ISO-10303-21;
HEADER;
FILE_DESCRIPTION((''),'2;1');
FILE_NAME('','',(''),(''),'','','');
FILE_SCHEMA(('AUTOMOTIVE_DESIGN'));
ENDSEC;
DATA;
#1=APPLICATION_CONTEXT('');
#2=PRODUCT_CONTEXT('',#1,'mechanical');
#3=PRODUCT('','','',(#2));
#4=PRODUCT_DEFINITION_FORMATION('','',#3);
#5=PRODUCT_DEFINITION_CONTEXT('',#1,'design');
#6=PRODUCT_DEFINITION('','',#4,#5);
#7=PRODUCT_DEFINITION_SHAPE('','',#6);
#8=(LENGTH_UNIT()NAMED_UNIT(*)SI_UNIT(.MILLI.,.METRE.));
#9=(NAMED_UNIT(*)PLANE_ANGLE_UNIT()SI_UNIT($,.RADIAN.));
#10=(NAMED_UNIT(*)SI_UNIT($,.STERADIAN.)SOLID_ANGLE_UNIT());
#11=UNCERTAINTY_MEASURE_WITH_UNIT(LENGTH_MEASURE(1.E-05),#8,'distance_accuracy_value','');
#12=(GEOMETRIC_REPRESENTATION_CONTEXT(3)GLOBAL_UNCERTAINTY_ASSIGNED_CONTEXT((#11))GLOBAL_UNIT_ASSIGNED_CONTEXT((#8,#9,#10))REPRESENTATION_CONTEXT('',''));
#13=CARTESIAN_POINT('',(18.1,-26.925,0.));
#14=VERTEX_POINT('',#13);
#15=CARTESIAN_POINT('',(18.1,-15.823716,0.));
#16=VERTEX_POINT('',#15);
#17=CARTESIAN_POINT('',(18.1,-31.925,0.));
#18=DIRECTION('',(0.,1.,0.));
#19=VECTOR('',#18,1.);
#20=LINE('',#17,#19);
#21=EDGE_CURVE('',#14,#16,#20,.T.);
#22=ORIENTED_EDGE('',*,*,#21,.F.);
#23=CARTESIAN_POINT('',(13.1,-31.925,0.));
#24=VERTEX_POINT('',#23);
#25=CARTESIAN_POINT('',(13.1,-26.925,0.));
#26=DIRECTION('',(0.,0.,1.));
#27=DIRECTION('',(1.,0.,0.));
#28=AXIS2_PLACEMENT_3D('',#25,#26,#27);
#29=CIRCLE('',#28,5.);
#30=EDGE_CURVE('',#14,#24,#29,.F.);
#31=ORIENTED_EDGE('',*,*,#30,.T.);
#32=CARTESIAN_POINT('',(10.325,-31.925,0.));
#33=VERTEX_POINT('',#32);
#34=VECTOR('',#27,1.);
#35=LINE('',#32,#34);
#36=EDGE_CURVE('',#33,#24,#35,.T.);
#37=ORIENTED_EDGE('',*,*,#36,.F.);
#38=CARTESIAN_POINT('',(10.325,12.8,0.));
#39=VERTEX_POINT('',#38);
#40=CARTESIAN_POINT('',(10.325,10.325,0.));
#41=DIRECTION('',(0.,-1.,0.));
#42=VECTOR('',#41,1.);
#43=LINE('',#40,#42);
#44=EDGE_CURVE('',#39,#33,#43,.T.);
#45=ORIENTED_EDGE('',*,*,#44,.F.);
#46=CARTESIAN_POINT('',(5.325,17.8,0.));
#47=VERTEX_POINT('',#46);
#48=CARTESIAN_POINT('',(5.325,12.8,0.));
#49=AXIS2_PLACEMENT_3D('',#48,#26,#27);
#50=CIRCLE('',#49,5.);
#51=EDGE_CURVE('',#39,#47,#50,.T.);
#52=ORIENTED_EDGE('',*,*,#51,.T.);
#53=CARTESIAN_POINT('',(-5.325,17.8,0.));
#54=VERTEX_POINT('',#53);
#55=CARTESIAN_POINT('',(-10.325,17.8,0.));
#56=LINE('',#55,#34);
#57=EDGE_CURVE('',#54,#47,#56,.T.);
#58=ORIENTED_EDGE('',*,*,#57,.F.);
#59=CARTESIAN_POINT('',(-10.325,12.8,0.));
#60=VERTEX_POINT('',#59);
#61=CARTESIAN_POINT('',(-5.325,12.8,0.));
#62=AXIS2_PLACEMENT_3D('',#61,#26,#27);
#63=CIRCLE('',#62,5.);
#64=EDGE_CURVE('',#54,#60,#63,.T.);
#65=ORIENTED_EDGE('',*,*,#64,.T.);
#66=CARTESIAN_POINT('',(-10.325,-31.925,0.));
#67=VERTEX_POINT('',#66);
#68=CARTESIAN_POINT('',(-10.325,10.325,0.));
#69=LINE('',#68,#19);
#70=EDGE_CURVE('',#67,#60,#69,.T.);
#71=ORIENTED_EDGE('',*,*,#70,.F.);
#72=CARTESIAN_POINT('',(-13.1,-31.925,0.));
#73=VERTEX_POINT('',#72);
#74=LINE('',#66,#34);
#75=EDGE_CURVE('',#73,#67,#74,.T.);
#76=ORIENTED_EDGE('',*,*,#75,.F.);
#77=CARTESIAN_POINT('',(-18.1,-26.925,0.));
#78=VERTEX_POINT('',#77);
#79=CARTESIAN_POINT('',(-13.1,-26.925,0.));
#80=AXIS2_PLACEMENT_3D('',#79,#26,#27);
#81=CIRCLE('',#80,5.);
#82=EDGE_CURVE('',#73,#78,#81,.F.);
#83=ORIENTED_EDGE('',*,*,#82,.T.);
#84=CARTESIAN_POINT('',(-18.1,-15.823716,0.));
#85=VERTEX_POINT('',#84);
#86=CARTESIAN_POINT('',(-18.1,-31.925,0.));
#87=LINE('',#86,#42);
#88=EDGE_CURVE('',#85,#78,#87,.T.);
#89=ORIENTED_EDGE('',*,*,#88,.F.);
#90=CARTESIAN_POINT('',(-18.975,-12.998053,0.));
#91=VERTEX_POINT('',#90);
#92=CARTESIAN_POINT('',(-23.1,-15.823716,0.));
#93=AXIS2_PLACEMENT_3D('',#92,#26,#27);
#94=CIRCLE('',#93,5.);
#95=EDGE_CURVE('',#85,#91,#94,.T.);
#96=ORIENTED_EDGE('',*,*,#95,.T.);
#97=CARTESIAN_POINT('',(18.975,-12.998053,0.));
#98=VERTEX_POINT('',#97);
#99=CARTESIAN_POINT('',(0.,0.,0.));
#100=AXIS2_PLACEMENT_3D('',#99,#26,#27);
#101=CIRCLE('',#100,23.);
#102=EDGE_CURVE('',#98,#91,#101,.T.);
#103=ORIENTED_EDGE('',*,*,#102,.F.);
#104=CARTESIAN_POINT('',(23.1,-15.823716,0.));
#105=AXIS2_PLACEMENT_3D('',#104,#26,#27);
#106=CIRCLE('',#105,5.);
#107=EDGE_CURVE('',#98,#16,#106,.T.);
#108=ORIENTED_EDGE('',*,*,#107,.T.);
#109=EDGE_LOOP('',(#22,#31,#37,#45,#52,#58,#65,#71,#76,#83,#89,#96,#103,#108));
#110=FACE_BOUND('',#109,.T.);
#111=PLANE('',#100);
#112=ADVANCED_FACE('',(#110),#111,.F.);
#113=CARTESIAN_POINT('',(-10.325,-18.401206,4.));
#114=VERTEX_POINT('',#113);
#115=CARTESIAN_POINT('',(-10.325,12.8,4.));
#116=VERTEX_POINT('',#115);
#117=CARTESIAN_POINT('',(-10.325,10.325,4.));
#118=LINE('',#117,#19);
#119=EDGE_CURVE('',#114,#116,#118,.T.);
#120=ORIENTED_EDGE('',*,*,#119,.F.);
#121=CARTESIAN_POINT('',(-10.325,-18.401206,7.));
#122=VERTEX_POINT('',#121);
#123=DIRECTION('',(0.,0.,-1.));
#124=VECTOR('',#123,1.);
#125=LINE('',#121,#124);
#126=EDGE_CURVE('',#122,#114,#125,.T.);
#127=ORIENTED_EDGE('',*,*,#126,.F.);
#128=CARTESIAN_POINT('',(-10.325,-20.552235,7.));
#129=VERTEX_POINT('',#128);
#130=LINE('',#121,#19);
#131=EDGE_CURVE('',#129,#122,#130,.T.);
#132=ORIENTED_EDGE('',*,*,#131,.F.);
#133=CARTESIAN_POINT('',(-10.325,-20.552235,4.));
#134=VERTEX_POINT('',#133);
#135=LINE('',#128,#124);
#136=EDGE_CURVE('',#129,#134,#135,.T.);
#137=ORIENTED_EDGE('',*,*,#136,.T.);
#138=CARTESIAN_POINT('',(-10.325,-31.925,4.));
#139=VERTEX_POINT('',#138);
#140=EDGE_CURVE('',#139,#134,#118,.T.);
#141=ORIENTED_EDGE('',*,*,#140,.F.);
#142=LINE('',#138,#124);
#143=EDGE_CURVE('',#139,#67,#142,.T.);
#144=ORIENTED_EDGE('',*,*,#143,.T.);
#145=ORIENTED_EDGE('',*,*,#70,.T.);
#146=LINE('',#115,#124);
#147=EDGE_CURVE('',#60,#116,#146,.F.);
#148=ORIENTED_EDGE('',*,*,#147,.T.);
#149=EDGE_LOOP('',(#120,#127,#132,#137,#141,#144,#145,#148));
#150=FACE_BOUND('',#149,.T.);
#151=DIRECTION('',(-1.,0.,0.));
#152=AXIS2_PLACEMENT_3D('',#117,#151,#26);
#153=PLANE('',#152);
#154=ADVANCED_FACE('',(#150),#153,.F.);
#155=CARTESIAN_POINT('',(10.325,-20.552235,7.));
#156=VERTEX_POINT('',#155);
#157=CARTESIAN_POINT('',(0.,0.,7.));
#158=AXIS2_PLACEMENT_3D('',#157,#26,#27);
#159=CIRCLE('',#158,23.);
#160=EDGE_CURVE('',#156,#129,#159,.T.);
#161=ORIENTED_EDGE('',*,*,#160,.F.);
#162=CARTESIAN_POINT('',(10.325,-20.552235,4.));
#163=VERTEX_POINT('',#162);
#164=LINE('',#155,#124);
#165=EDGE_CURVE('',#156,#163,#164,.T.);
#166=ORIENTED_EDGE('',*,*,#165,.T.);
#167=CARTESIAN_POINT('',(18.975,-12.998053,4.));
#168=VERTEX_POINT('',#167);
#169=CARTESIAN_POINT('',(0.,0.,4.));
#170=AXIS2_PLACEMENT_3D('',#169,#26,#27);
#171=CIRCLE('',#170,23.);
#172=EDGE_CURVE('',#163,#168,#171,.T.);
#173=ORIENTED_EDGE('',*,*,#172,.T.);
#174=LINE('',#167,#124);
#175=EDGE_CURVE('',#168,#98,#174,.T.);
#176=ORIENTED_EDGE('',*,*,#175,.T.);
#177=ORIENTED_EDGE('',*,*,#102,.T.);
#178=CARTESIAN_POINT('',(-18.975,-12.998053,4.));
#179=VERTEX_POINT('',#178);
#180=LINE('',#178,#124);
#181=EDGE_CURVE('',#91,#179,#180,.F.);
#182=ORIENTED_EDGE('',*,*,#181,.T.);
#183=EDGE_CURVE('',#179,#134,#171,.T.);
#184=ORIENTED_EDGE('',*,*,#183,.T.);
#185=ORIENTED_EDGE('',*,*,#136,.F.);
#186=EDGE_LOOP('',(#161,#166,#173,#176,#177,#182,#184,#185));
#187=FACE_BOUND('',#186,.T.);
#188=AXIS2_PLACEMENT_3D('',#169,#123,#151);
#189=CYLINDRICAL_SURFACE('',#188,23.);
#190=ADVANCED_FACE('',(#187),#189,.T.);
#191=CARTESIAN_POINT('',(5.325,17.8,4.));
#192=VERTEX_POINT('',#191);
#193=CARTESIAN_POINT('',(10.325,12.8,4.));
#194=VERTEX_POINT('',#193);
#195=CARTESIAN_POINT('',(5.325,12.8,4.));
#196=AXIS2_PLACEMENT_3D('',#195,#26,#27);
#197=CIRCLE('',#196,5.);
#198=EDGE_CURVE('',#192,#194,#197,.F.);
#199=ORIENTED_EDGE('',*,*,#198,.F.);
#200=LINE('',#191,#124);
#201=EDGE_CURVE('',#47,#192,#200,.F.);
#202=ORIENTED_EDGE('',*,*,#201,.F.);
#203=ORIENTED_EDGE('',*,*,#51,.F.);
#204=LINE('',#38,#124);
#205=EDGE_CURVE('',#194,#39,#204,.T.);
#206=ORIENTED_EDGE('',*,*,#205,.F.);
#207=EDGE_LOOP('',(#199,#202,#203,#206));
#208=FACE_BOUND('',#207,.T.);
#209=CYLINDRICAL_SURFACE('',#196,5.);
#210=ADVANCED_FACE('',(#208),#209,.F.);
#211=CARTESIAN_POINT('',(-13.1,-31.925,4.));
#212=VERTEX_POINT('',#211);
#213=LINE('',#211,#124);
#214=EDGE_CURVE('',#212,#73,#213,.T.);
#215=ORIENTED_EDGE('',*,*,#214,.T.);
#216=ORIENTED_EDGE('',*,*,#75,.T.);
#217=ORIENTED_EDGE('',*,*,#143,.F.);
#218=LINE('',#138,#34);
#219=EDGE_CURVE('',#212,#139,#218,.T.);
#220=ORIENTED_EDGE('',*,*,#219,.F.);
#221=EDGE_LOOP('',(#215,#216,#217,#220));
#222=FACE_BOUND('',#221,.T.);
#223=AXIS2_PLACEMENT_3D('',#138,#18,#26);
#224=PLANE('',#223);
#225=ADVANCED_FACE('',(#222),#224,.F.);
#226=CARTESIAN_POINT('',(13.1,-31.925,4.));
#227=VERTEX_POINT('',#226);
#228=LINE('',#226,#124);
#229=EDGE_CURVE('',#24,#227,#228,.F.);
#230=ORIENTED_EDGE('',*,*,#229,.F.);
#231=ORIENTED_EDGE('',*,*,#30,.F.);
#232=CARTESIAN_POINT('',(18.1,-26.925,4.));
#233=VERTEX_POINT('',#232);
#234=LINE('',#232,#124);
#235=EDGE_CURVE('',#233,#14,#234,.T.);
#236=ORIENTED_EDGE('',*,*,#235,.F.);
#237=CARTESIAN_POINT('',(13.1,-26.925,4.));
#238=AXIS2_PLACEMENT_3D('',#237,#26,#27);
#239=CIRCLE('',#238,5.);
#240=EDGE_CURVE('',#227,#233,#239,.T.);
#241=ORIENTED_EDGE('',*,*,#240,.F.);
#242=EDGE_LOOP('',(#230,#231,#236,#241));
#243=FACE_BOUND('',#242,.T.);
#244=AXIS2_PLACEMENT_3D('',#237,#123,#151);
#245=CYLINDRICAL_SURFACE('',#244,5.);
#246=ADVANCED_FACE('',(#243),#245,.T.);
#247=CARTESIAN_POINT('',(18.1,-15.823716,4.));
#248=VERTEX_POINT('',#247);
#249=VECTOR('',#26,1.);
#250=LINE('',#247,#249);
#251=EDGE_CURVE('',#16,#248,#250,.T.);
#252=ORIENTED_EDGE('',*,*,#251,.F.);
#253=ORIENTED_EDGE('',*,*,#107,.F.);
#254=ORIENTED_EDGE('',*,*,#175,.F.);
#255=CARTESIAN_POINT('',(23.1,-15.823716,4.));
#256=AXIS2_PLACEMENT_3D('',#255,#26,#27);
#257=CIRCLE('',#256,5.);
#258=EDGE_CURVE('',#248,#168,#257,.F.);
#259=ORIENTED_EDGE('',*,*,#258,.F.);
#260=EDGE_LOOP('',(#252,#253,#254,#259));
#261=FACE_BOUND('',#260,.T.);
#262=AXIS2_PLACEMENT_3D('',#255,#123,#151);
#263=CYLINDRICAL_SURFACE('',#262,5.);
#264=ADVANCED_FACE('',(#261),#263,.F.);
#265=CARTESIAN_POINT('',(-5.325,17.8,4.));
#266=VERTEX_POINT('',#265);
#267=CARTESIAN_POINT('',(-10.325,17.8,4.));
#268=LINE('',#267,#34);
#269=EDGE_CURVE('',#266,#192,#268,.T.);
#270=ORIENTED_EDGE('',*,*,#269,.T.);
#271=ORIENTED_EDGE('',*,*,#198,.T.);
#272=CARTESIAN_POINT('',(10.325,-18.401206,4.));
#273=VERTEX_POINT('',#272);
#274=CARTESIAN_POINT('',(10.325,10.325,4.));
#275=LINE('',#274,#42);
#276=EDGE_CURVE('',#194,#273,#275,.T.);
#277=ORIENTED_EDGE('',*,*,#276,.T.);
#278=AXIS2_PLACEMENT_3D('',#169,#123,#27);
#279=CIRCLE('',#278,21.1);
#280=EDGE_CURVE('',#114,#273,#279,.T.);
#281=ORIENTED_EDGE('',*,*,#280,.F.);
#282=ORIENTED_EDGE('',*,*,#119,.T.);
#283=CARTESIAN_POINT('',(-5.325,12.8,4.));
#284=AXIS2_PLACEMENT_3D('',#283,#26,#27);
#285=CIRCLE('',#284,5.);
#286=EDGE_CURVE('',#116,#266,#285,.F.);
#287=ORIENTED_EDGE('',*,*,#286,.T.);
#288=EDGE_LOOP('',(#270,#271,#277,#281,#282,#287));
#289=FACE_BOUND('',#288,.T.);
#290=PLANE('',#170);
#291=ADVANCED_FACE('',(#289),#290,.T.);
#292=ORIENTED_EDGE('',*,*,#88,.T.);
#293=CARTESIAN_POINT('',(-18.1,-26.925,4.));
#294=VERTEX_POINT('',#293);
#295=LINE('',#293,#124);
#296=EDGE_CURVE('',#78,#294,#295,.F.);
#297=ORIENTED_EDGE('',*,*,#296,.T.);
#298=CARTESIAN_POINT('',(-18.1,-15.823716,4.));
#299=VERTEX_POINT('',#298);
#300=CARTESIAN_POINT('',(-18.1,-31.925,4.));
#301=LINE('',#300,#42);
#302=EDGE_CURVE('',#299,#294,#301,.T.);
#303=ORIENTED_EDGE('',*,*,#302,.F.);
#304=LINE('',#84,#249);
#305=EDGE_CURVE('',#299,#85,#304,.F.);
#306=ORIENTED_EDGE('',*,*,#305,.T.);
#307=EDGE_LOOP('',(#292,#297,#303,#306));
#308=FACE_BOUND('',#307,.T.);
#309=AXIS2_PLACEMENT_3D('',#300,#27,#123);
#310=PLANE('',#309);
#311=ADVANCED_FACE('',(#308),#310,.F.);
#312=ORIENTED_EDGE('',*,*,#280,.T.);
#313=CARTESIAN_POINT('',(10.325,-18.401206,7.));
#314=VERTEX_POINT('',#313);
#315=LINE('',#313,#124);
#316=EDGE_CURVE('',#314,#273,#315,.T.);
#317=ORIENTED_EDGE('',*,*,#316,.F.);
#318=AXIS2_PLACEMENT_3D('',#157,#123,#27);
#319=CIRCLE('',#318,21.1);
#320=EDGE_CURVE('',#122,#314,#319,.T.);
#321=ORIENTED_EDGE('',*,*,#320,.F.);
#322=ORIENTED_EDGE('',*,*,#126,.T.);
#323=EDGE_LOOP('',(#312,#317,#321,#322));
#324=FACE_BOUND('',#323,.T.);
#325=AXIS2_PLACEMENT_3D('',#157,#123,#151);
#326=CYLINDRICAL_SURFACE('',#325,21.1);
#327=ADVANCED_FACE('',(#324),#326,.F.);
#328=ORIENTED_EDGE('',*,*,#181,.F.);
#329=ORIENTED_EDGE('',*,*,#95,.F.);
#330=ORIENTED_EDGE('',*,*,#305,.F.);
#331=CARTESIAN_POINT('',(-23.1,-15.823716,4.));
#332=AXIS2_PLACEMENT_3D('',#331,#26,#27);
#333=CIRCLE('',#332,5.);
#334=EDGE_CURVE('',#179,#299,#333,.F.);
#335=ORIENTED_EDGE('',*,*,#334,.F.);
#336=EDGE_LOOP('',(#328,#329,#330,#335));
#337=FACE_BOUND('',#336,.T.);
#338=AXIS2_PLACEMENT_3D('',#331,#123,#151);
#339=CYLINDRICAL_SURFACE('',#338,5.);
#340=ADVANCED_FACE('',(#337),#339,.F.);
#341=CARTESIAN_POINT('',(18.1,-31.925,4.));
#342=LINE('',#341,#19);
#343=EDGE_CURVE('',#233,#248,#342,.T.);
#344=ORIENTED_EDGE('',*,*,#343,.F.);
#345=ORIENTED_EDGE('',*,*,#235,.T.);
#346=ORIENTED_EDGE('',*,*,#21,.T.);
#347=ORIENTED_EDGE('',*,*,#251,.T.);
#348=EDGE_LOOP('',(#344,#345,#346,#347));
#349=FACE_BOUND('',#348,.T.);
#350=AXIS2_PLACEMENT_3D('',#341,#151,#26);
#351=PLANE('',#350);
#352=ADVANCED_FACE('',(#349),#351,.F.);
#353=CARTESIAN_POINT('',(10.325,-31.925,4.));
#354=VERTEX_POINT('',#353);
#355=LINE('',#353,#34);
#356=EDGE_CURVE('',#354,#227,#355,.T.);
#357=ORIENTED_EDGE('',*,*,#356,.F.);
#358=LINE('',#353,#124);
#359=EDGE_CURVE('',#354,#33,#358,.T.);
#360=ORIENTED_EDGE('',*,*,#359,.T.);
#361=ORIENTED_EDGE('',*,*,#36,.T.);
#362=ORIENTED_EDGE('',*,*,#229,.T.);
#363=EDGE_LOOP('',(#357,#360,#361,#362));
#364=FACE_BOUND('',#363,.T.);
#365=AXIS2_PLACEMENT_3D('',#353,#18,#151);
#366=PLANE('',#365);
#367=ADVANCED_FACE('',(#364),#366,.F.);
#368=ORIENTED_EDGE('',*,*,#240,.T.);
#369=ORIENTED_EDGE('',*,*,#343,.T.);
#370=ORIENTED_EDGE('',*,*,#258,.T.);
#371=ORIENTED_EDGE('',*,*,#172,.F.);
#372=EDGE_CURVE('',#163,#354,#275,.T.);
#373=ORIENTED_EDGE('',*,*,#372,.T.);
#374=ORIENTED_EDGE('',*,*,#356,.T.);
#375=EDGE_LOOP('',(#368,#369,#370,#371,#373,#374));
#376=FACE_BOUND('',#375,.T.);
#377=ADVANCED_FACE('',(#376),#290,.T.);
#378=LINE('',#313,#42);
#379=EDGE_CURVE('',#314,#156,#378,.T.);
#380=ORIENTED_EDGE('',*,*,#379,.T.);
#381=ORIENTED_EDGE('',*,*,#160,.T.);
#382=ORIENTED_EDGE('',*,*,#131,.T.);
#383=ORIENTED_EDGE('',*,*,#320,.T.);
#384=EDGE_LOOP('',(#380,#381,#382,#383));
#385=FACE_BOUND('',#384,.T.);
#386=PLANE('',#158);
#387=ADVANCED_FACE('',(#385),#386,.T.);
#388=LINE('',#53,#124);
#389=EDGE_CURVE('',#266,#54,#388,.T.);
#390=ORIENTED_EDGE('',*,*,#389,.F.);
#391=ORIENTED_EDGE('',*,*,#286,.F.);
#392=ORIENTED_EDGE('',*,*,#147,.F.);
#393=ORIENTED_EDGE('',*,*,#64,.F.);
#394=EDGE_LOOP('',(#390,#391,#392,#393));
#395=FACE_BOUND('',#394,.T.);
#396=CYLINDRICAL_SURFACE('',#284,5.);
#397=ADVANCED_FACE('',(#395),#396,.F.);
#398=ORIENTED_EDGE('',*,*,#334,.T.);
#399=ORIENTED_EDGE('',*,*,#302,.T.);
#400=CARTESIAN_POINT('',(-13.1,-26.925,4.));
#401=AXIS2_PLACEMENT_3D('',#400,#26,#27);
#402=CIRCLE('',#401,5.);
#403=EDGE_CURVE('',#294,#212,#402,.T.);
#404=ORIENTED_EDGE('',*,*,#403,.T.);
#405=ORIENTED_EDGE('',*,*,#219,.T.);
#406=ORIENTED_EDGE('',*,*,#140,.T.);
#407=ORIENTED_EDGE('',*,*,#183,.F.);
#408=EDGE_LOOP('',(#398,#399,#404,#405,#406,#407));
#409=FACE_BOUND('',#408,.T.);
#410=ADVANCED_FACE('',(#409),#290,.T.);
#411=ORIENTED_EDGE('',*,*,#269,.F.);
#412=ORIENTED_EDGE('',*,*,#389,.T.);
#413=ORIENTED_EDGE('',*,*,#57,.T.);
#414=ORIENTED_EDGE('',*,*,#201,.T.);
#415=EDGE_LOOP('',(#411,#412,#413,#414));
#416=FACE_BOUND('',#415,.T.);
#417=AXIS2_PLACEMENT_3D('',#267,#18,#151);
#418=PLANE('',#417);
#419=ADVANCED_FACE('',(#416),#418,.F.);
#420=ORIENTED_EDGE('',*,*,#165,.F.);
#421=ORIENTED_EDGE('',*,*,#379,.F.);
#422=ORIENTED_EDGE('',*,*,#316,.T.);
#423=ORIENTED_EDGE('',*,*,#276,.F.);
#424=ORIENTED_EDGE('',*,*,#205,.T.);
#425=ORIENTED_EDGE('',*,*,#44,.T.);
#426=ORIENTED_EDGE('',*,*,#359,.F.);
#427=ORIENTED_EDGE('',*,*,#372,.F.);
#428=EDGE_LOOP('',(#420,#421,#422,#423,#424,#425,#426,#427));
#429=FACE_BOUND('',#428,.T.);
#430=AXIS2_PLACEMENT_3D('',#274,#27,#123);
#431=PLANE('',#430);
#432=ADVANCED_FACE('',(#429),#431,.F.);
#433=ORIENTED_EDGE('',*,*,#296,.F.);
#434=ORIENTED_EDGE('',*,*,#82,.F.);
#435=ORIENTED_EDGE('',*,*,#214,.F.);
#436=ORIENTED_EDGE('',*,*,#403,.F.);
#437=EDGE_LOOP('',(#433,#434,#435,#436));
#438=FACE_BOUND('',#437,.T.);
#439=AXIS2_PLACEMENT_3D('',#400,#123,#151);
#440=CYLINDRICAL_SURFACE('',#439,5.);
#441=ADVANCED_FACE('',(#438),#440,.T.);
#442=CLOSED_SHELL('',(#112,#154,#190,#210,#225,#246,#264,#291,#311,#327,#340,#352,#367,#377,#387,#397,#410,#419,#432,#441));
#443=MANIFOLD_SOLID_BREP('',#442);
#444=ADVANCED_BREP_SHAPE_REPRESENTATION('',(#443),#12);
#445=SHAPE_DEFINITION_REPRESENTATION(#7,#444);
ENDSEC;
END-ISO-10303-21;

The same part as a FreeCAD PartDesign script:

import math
import FreeCAD as App
import Part
import Sketcher
Q = App.Units.Quantity


def edges_at(feature, points):
    """Names of the edges that pass closest to the given points."""
    edges = feature.Shape.Edges
    near = lambda p: min(range(len(edges)), key=lambda i: edges[i].distToShape(Part.Vertex(*p))[0])
    return sorted({f"Edge{near(p) + 1}" for p in points})

doc = App.newDocument("Part")
body = doc.addObject("PartDesign::Body", "Body")

sketch1 = body.newObject("Sketcher::SketchObject", "Sketch")
sketch1.AttachmentSupport = (doc.getObject("XY_Plane"), [""])
sketch1.MapMode = "FlatFace"
sketch1.addGeometry([
    Part.LineSegment(App.Vector(-18, -32, 0), App.Vector(-10, -32, 0)),
    Part.LineSegment(App.Vector(-10, -32, 0), App.Vector(-10, 18, 0)),
    Part.LineSegment(App.Vector(-10, 18, 0), App.Vector(10, 18, 0)),
    Part.LineSegment(App.Vector(10, 18, 0), App.Vector(10, -32, 0)),
    Part.LineSegment(App.Vector(10, -32, 0), App.Vector(18, -32, 0)),
    Part.LineSegment(App.Vector(18, -32, 0), App.Vector(18, -14, 0)),
    Part.ArcOfCircle(Part.Circle(App.Vector(0, 0, 0), App.Vector(0, 0, 1), 23), math.radians(-38), math.radians(218)),
    Part.LineSegment(App.Vector(-18, -14, 0), App.Vector(-18, -32, 0)),
], False)
sketch1.addConstraint([
    Sketcher.Constraint("Coincident", 0, 2, 1, 1),
    Sketcher.Constraint("Coincident", 1, 2, 2, 1),
    Sketcher.Constraint("Coincident", 2, 2, 3, 1),
    Sketcher.Constraint("Coincident", 3, 2, 4, 1),
    Sketcher.Constraint("Coincident", 4, 2, 5, 1),
    Sketcher.Constraint("Coincident", 5, 2, 6, 1),
    Sketcher.Constraint("Coincident", 6, 2, 7, 1),
    Sketcher.Constraint("Coincident", 7, 2, 0, 1),
    Sketcher.Constraint("Horizontal", 0),
    Sketcher.Constraint("Vertical", 1),
    Sketcher.Constraint("Horizontal", 2),
    Sketcher.Constraint("Vertical", 3),
    Sketcher.Constraint("Horizontal", 4),
    Sketcher.Constraint("Vertical", 5),
    Sketcher.Constraint("Vertical", 7),
    Sketcher.Constraint("Coincident", 6, 3, -1, 1),
    Sketcher.Constraint("Symmetric", 0, 2, 3, 2, -2),
    Sketcher.Constraint("Horizontal", 5, 2, 6, 2),
    Sketcher.Constraint("Radius", 6, Q("23 mm")),
    Sketcher.Constraint("DistanceX", 2, 1, 2, 2, Q("20.65 mm")),
    Sketcher.Constraint("DistanceY", -1, 1, 1, 2, Q("17.8 mm")),
    Sketcher.Constraint("DistanceX", -1, 1, 4, 2, Q("18.1 mm")),
    Sketcher.Constraint("DistanceY", 1, 1, 1, 2, Q("49.725 mm")),
])
pad1 = body.newObject("PartDesign::Pad", "Pad")
pad1.Profile = sketch1
pad1.Length = 4

sketch2 = body.newObject("Sketcher::SketchObject", "Sketch001")
sketch2.AttachmentSupport = (doc.getObject("XY_Plane"), [""])
sketch2.MapMode = "FlatFace"
sketch2.AttachmentOffset = App.Placement(App.Vector(0, 0, 4), App.Rotation())
sketch2.addGeometry([
    Part.LineSegment(App.Vector(-10.3, -20.6, 0), App.Vector(-10.3, -18.4, 0)),
    Part.ArcOfCircle(Part.Circle(App.Vector(0, 0, 0), App.Vector(0, 0, 1), 21.1), math.radians(-61), math.radians(241)),
    Part.LineSegment(App.Vector(10.3, -18.4, 0), App.Vector(10.3, -20.6, 0)),
    Part.ArcOfCircle(Part.Circle(App.Vector(0, 0, 0), App.Vector(0, 0, 1), 23), math.radians(-63), math.radians(243)),
], False)
sketch2.addConstraint([
    Sketcher.Constraint("Coincident", 0, 2, 1, 2),
    Sketcher.Constraint("Coincident", 1, 1, 2, 1),
    Sketcher.Constraint("Coincident", 2, 2, 3, 1),
    Sketcher.Constraint("Coincident", 3, 2, 0, 1),
    Sketcher.Constraint("Vertical", 0),
    Sketcher.Constraint("Vertical", 2),
    Sketcher.Constraint("Coincident", 1, 3, -1, 1),
    Sketcher.Constraint("Coincident", 3, 3, -1, 1),
    Sketcher.Constraint("Horizontal", 0, 2, 1, 1),
    Sketcher.Constraint("Radius", 3, Q("23 mm")),
    Sketcher.Constraint("Radius", 1, Q("21.1 mm")),
    Sketcher.Constraint("DistanceX", 0, 2, 1, 1, Q("20.65 mm")),
])
pad2 = body.newObject("PartDesign::Pad", "Pad001")
pad2.Profile = sketch2
pad2.Length = 3
doc.recompute()

fillet = body.newObject("PartDesign::Fillet", "Fillet")
fillet.Base = (pad2, edges_at(pad2, [(10.325, 17.8, 2), (-10.325, 17.8, 2)]))
fillet.Radius = 5
doc.recompute()

fillet2 = body.newObject("PartDesign::Fillet", "Fillet001")
fillet2.Base = (fillet, edges_at(fillet, [
    (18.1, -31.925, 2),
    (-18.1, -31.925, 2),
    (-18.1, -14.191, 2),
    (18.1, -14.191, 2),
]))
fillet2.Radius = 5

doc.recompute()
